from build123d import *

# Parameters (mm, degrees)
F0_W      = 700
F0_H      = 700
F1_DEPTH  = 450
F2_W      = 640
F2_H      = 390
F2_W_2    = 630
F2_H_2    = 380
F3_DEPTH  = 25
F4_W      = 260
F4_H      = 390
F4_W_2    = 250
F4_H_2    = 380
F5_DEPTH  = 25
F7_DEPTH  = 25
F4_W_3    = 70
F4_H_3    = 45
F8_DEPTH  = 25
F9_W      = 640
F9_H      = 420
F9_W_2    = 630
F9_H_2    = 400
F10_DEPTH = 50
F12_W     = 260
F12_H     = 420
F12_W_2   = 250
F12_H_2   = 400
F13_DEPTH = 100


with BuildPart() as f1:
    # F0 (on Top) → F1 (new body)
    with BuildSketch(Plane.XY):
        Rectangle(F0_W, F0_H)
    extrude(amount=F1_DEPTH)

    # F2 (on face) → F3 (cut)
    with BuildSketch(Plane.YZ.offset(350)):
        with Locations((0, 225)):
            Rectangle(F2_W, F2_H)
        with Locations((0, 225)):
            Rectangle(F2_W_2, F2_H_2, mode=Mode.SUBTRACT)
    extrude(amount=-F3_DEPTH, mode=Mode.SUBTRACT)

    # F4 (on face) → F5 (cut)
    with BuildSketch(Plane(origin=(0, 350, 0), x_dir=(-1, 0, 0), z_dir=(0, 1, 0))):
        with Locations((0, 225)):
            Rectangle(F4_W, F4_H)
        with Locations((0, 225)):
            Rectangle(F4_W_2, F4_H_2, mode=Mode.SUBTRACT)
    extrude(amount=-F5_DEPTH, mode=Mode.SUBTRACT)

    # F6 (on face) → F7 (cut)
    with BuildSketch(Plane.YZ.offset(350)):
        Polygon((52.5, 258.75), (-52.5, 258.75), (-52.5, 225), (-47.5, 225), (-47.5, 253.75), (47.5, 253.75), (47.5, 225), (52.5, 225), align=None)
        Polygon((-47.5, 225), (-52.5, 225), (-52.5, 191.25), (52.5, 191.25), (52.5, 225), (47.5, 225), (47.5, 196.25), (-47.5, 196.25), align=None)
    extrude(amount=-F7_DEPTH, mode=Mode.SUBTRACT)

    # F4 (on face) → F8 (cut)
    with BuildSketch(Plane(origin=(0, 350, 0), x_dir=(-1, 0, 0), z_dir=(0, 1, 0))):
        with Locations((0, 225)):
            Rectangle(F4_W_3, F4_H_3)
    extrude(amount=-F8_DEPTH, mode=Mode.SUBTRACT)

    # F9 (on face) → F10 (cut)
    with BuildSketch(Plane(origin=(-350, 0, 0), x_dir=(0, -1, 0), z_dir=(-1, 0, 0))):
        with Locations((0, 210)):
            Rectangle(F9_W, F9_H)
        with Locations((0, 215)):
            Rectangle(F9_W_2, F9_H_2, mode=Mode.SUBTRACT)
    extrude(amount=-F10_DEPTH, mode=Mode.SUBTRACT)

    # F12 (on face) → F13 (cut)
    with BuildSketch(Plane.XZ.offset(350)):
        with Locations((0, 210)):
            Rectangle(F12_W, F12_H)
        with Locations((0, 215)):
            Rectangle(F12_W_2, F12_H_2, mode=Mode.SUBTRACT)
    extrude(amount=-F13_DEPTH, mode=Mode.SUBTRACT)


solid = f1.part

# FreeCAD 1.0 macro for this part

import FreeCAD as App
import Part
import Sketcher
from FreeCAD import Vector


def add_polygon(sketch, points):
    """Adds a closed chain of lines whose ends are joined by coincident constraints."""
    first, n = sketch.GeometryCount, len(points)
    for a, b in zip(points, points[1:] + points[:1]):
        sketch.addGeometry(Part.LineSegment(App.Vector(*a, 0), App.Vector(*b, 0)), False)
    for i in range(n):
        sketch.addConstraint(Sketcher.Constraint("Coincident", first + i, 2, first + (i + 1) % n, 1))

doc = App.newDocument("Part")
body = doc.addObject("PartDesign::Body", "Body")

# Sketch on XY plane
sketch1 = body.newObject("Sketcher::SketchObject", "Sketch")
sketch1.AttachmentSupport = (doc.getObject("XY_Plane"), [""])
sketch1.MapMode = "FlatFace"
add_polygon(sketch1, [(-350, 350), (-350, -350), (350, -350), (350, 350)])  # lines 0-3
sketch1.addConstraint(Sketcher.Constraint("Vertical", 0))
sketch1.addConstraint(Sketcher.Constraint("Horizontal", 1))
sketch1.addConstraint(Sketcher.Constraint("Vertical", 2))
sketch1.addConstraint(Sketcher.Constraint("Horizontal", 3))
sketch1.addConstraint(Sketcher.Constraint("Symmetric", 0, 2, 2, 2, -1, 1))
sketch1.addConstraint(Sketcher.Constraint("Equal", 3, 0))
sketch1.addConstraint(Sketcher.Constraint("DistanceX", 1, 1, 1, 2, 700.0))
pad1 = body.newObject("PartDesign::Pad", "Pad")
pad1.Profile = sketch1
pad1.Length = 450

# Sketch on YZ plane
sketch2 = body.newObject("Sketcher::SketchObject", "Sketch001")
sketch2.AttachmentSupport = (doc.getObject("YZ_Plane"), [""])
sketch2.MapMode = "FlatFace"
sketch2.AttachmentOffset = App.Placement(Vector(0, 0, 350), App.Rotation())
add_polygon(sketch2, [(-320, 420), (-320, 30), (320, 30), (320, 420)])  # lines 0-3
add_polygon(sketch2, [(315, 35), (-315, 35), (-315, 415), (315, 415)])  # lines 4-7
sketch2.addConstraint(Sketcher.Constraint("Vertical", 0))
sketch2.addConstraint(Sketcher.Constraint("Horizontal", 1))
sketch2.addConstraint(Sketcher.Constraint("Vertical", 2))
sketch2.addConstraint(Sketcher.Constraint("Horizontal", 3))
sketch2.addConstraint(Sketcher.Constraint("Horizontal", 4))
sketch2.addConstraint(Sketcher.Constraint("Vertical", 5))
sketch2.addConstraint(Sketcher.Constraint("Horizontal", 6))
sketch2.addConstraint(Sketcher.Constraint("Vertical", 7))
sketch2.addConstraint(Sketcher.Constraint("DistanceX", 1, 1, 1, 2, 640.0))
sketch2.addConstraint(Sketcher.Constraint("DistanceX", 4, 2, 4, 1, 630.0))
sketch2.addConstraint(Sketcher.Constraint("DistanceY", 0, 2, 0, 1, 390.0))
sketch2.addConstraint(Sketcher.Constraint("DistanceY", 5, 1, 5, 2, 380.0))
sketch2.addConstraint(Sketcher.Constraint("DistanceX", 0, 2, -1, 1, 320.0))
sketch2.addConstraint(Sketcher.Constraint("DistanceY", -1, 1, 0, 2, 30.0))
sketch2.addConstraint(Sketcher.Constraint("DistanceX", 4, 2, -1, 1, 315.0))
sketch2.addConstraint(Sketcher.Constraint("DistanceY", -1, 1, 4, 2, 35.0))
pocket1 = body.newObject("PartDesign::Pocket", "Pocket")
pocket1.Profile = sketch2
pocket1.Length = 25

# Sketch on XZ plane
sketch3 = body.newObject("Sketcher::SketchObject", "Sketch002")
sketch3.AttachmentSupport = (doc.getObject("XZ_Plane"), [""])
sketch3.MapMode = "FlatFace"
sketch3.AttachmentOffset = App.Placement(Vector(0, 0, -350), App.Rotation())
add_polygon(sketch3, [(130, 420), (130, 30), (-130, 30), (-130, 420)])  # lines 0-3
add_polygon(sketch3, [(-125, 35), (125, 35), (125, 415), (-125, 415)])  # lines 4-7
sketch3.addConstraint(Sketcher.Constraint("Vertical", 0))
sketch3.addConstraint(Sketcher.Constraint("Horizontal", 1))
sketch3.addConstraint(Sketcher.Constraint("Vertical", 2))
sketch3.addConstraint(Sketcher.Constraint("Horizontal", 3))
sketch3.addConstraint(Sketcher.Constraint("Horizontal", 4))
sketch3.addConstraint(Sketcher.Constraint("Vertical", 5))
sketch3.addConstraint(Sketcher.Constraint("Horizontal", 6))
sketch3.addConstraint(Sketcher.Constraint("Vertical", 7))
sketch3.addConstraint(Sketcher.Constraint("DistanceX", 1, 2, 1, 1, 260.0))
sketch3.addConstraint(Sketcher.Constraint("DistanceX", 4, 1, 4, 2, 250.0))
sketch3.addConstraint(Sketcher.Constraint("DistanceY", 0, 2, 0, 1, 390.0))
sketch3.addConstraint(Sketcher.Constraint("DistanceY", 5, 1, 5, 2, 380.0))
sketch3.addConstraint(Sketcher.Constraint("DistanceX", -1, 1, 0, 2, 130.0))
sketch3.addConstraint(Sketcher.Constraint("DistanceY", -1, 1, 0, 2, 30.0))
sketch3.addConstraint(Sketcher.Constraint("DistanceX", -1, 1, 4, 2, 125.0))
sketch3.addConstraint(Sketcher.Constraint("DistanceY", -1, 1, 4, 2, 35.0))
pocket2 = body.newObject("PartDesign::Pocket", "Pocket001")
pocket2.Profile = sketch3
pocket2.Length = 25
pocket2.Reversed = True

# Sketch on YZ plane
sketch4 = body.newObject("Sketcher::SketchObject", "Sketch003")
sketch4.AttachmentSupport = (doc.getObject("YZ_Plane"), [""])
sketch4.MapMode = "FlatFace"
sketch4.AttachmentOffset = App.Placement(Vector(0, 0, 350), App.Rotation())
add_polygon(sketch4, [(52, 259), (-52, 259), (-52, 191), (52, 191)])  # lines 0-3
add_polygon(sketch4, [(-48, 254), (48, 254), (48, 196), (-48, 196)])  # lines 4-7
sketch4.addConstraint(Sketcher.Constraint("Horizontal", 0))
sketch4.addConstraint(Sketcher.Constraint("Vertical", 1))
sketch4.addConstraint(Sketcher.Constraint("Horizontal", 2))
sketch4.addConstraint(Sketcher.Constraint("Vertical", 3))
sketch4.addConstraint(Sketcher.Constraint("Horizontal", 4))
sketch4.addConstraint(Sketcher.Constraint("Vertical", 5))
sketch4.addConstraint(Sketcher.Constraint("Horizontal", 6))
sketch4.addConstraint(Sketcher.Constraint("Vertical", 7))
sketch4.addConstraint(Sketcher.Constraint("DistanceX", 0, 2, 0, 1, 105.0))
sketch4.addConstraint(Sketcher.Constraint("DistanceX", 4, 1, 4, 2, 95.0))
sketch4.addConstraint(Sketcher.Constraint("DistanceY", 1, 2, 1, 1, 67.5))
sketch4.addConstraint(Sketcher.Constraint("DistanceY", 5, 2, 5, 1, 57.5))
sketch4.addConstraint(Sketcher.Constraint("DistanceX", 4, 2, 3, 2, 5.0))
sketch4.addConstraint(Sketcher.Constraint("DistanceY", 4, 2, 3, 2, 5.0))
sketch4.addConstraint(Sketcher.Constraint("DistanceX", 0, 2, -1, 1, 52.5))
sketch4.addConstraint(Sketcher.Constraint("DistanceY", -1, 1, 0, 2, 258.75))
pocket3 = body.newObject("PartDesign::Pocket", "Pocket002")
pocket3.Profile = sketch4
pocket3.Length = 25

# Sketch on XZ plane
sketch5 = body.newObject("Sketcher::SketchObject", "Sketch004")
sketch5.AttachmentSupport = (doc.getObject("XZ_Plane"), [""])
sketch5.MapMode = "FlatFace"
sketch5.AttachmentOffset = App.Placement(Vector(0, 0, -350), App.Rotation())
add_polygon(sketch5, [(35, 248), (35, 202), (-35, 202), (-35, 248)])  # lines 0-3
sketch5.addConstraint(Sketcher.Constraint("Vertical", 0))
sketch5.addConstraint(Sketcher.Constraint("Horizontal", 1))
sketch5.addConstraint(Sketcher.Constraint("Vertical", 2))
sketch5.addConstraint(Sketcher.Constraint("Horizontal", 3))
sketch5.addConstraint(Sketcher.Constraint("DistanceX", 1, 2, 1, 1, 70.0))
sketch5.addConstraint(Sketcher.Constraint("DistanceY", 0, 2, 0, 1, 45.0))
sketch5.addConstraint(Sketcher.Constraint("DistanceX", -1, 1, 0, 2, 35.0))
sketch5.addConstraint(Sketcher.Constraint("DistanceY", -1, 1, 0, 2, 202.5))
pocket4 = body.newObject("PartDesign::Pocket", "Pocket003")
pocket4.Profile = sketch5
pocket4.Length = 25
pocket4.Reversed = True

# Sketch on YZ plane
sketch6 = body.newObject("Sketcher::SketchObject", "Sketch005")
sketch6.AttachmentSupport = (doc.getObject("YZ_Plane"), [""])
sketch6.MapMode = "FlatFace"
sketch6.AttachmentOffset = App.Placement(Vector(0, 0, -350), App.Rotation())
add_polygon(sketch6, [(320, 420), (320, 0), (-320, 0), (-320, 420)])  # lines 0-3
add_polygon(sketch6, [(-315, 15), (315, 15), (315, 415), (-315, 415)])  # lines 4-7
sketch6.addConstraint(Sketcher.Constraint("Vertical", 0))
sketch6.addConstraint(Sketcher.Constraint("Horizontal", 1))
sketch6.addConstraint(Sketcher.Constraint("Vertical", 2))
sketch6.addConstraint(Sketcher.Constraint("Horizontal", 3))
sketch6.addConstraint(Sketcher.Constraint("Horizontal", 4))
sketch6.addConstraint(Sketcher.Constraint("Vertical", 5))
sketch6.addConstraint(Sketcher.Constraint("Horizontal", 6))
sketch6.addConstraint(Sketcher.Constraint("Vertical", 7))
sketch6.addConstraint(Sketcher.Constraint("Symmetric", 0, 2, 1, 2, -1, 1))
sketch6.addConstraint(Sketcher.Constraint("DistanceX", 1, 2, 1, 1, 640.0))
sketch6.addConstraint(Sketcher.Constraint("DistanceX", 4, 1, 4, 2, 630.0))
sketch6.addConstraint(Sketcher.Constraint("DistanceY", 0, 2, 0, 1, 420.0))
sketch6.addConstraint(Sketcher.Constraint("DistanceY", 5, 1, 5, 2, 400.0))
sketch6.addConstraint(Sketcher.Constraint("DistanceX", -1, 1, 4, 2, 315.0))
sketch6.addConstraint(Sketcher.Constraint("DistanceY", -1, 1, 4, 2, 15.0))
pocket5 = body.newObject("PartDesign::Pocket", "Pocket004")
pocket5.Profile = sketch6
pocket5.Length = 50
pocket5.Reversed = True

# Sketch on XZ plane
sketch7 = body.newObject("Sketcher::SketchObject", "Sketch006")
sketch7.AttachmentSupport = (doc.getObject("XZ_Plane"), [""])
sketch7.MapMode = "FlatFace"
sketch7.AttachmentOffset = App.Placement(Vector(0, 0, 350), App.Rotation())
add_polygon(sketch7, [(-130, 420), (-130, 0), (130, 0), (130, 420)])  # lines 0-3
add_polygon(sketch7, [(125, 15), (-125, 15), (-125, 415), (125, 415)])  # lines 4-7
sketch7.addConstraint(Sketcher.Constraint("Vertical", 0))
sketch7.addConstraint(Sketcher.Constraint("Horizontal", 1))
sketch7.addConstraint(Sketcher.Constraint("Vertical", 2))
sketch7.addConstraint(Sketcher.Constraint("Horizontal", 3))
sketch7.addConstraint(Sketcher.Constraint("Horizontal", 4))
sketch7.addConstraint(Sketcher.Constraint("Vertical", 5))
sketch7.addConstraint(Sketcher.Constraint("Horizontal", 6))
sketch7.addConstraint(Sketcher.Constraint("Vertical", 7))
sketch7.addConstraint(Sketcher.Constraint("Symmetric", 0, 2, 1, 2, -1, 1))
sketch7.addConstraint(Sketcher.Constraint("DistanceX", 1, 1, 1, 2, 260.0))
sketch7.addConstraint(Sketcher.Constraint("DistanceX", 4, 2, 4, 1, 250.0))
sketch7.addConstraint(Sketcher.Constraint("DistanceY", 0, 2, 0, 1, 420.0))
sketch7.addConstraint(Sketcher.Constraint("DistanceY", 5, 1, 5, 2, 400.0))
sketch7.addConstraint(Sketcher.Constraint("DistanceX", 4, 2, -1, 1, 125.0))
sketch7.addConstraint(Sketcher.Constraint("DistanceY", -1, 1, 4, 2, 15.0))
pocket6 = body.newObject("PartDesign::Pocket", "Pocket005")
pocket6.Profile = sketch7
pocket6.Length = 100

doc.recompute()
